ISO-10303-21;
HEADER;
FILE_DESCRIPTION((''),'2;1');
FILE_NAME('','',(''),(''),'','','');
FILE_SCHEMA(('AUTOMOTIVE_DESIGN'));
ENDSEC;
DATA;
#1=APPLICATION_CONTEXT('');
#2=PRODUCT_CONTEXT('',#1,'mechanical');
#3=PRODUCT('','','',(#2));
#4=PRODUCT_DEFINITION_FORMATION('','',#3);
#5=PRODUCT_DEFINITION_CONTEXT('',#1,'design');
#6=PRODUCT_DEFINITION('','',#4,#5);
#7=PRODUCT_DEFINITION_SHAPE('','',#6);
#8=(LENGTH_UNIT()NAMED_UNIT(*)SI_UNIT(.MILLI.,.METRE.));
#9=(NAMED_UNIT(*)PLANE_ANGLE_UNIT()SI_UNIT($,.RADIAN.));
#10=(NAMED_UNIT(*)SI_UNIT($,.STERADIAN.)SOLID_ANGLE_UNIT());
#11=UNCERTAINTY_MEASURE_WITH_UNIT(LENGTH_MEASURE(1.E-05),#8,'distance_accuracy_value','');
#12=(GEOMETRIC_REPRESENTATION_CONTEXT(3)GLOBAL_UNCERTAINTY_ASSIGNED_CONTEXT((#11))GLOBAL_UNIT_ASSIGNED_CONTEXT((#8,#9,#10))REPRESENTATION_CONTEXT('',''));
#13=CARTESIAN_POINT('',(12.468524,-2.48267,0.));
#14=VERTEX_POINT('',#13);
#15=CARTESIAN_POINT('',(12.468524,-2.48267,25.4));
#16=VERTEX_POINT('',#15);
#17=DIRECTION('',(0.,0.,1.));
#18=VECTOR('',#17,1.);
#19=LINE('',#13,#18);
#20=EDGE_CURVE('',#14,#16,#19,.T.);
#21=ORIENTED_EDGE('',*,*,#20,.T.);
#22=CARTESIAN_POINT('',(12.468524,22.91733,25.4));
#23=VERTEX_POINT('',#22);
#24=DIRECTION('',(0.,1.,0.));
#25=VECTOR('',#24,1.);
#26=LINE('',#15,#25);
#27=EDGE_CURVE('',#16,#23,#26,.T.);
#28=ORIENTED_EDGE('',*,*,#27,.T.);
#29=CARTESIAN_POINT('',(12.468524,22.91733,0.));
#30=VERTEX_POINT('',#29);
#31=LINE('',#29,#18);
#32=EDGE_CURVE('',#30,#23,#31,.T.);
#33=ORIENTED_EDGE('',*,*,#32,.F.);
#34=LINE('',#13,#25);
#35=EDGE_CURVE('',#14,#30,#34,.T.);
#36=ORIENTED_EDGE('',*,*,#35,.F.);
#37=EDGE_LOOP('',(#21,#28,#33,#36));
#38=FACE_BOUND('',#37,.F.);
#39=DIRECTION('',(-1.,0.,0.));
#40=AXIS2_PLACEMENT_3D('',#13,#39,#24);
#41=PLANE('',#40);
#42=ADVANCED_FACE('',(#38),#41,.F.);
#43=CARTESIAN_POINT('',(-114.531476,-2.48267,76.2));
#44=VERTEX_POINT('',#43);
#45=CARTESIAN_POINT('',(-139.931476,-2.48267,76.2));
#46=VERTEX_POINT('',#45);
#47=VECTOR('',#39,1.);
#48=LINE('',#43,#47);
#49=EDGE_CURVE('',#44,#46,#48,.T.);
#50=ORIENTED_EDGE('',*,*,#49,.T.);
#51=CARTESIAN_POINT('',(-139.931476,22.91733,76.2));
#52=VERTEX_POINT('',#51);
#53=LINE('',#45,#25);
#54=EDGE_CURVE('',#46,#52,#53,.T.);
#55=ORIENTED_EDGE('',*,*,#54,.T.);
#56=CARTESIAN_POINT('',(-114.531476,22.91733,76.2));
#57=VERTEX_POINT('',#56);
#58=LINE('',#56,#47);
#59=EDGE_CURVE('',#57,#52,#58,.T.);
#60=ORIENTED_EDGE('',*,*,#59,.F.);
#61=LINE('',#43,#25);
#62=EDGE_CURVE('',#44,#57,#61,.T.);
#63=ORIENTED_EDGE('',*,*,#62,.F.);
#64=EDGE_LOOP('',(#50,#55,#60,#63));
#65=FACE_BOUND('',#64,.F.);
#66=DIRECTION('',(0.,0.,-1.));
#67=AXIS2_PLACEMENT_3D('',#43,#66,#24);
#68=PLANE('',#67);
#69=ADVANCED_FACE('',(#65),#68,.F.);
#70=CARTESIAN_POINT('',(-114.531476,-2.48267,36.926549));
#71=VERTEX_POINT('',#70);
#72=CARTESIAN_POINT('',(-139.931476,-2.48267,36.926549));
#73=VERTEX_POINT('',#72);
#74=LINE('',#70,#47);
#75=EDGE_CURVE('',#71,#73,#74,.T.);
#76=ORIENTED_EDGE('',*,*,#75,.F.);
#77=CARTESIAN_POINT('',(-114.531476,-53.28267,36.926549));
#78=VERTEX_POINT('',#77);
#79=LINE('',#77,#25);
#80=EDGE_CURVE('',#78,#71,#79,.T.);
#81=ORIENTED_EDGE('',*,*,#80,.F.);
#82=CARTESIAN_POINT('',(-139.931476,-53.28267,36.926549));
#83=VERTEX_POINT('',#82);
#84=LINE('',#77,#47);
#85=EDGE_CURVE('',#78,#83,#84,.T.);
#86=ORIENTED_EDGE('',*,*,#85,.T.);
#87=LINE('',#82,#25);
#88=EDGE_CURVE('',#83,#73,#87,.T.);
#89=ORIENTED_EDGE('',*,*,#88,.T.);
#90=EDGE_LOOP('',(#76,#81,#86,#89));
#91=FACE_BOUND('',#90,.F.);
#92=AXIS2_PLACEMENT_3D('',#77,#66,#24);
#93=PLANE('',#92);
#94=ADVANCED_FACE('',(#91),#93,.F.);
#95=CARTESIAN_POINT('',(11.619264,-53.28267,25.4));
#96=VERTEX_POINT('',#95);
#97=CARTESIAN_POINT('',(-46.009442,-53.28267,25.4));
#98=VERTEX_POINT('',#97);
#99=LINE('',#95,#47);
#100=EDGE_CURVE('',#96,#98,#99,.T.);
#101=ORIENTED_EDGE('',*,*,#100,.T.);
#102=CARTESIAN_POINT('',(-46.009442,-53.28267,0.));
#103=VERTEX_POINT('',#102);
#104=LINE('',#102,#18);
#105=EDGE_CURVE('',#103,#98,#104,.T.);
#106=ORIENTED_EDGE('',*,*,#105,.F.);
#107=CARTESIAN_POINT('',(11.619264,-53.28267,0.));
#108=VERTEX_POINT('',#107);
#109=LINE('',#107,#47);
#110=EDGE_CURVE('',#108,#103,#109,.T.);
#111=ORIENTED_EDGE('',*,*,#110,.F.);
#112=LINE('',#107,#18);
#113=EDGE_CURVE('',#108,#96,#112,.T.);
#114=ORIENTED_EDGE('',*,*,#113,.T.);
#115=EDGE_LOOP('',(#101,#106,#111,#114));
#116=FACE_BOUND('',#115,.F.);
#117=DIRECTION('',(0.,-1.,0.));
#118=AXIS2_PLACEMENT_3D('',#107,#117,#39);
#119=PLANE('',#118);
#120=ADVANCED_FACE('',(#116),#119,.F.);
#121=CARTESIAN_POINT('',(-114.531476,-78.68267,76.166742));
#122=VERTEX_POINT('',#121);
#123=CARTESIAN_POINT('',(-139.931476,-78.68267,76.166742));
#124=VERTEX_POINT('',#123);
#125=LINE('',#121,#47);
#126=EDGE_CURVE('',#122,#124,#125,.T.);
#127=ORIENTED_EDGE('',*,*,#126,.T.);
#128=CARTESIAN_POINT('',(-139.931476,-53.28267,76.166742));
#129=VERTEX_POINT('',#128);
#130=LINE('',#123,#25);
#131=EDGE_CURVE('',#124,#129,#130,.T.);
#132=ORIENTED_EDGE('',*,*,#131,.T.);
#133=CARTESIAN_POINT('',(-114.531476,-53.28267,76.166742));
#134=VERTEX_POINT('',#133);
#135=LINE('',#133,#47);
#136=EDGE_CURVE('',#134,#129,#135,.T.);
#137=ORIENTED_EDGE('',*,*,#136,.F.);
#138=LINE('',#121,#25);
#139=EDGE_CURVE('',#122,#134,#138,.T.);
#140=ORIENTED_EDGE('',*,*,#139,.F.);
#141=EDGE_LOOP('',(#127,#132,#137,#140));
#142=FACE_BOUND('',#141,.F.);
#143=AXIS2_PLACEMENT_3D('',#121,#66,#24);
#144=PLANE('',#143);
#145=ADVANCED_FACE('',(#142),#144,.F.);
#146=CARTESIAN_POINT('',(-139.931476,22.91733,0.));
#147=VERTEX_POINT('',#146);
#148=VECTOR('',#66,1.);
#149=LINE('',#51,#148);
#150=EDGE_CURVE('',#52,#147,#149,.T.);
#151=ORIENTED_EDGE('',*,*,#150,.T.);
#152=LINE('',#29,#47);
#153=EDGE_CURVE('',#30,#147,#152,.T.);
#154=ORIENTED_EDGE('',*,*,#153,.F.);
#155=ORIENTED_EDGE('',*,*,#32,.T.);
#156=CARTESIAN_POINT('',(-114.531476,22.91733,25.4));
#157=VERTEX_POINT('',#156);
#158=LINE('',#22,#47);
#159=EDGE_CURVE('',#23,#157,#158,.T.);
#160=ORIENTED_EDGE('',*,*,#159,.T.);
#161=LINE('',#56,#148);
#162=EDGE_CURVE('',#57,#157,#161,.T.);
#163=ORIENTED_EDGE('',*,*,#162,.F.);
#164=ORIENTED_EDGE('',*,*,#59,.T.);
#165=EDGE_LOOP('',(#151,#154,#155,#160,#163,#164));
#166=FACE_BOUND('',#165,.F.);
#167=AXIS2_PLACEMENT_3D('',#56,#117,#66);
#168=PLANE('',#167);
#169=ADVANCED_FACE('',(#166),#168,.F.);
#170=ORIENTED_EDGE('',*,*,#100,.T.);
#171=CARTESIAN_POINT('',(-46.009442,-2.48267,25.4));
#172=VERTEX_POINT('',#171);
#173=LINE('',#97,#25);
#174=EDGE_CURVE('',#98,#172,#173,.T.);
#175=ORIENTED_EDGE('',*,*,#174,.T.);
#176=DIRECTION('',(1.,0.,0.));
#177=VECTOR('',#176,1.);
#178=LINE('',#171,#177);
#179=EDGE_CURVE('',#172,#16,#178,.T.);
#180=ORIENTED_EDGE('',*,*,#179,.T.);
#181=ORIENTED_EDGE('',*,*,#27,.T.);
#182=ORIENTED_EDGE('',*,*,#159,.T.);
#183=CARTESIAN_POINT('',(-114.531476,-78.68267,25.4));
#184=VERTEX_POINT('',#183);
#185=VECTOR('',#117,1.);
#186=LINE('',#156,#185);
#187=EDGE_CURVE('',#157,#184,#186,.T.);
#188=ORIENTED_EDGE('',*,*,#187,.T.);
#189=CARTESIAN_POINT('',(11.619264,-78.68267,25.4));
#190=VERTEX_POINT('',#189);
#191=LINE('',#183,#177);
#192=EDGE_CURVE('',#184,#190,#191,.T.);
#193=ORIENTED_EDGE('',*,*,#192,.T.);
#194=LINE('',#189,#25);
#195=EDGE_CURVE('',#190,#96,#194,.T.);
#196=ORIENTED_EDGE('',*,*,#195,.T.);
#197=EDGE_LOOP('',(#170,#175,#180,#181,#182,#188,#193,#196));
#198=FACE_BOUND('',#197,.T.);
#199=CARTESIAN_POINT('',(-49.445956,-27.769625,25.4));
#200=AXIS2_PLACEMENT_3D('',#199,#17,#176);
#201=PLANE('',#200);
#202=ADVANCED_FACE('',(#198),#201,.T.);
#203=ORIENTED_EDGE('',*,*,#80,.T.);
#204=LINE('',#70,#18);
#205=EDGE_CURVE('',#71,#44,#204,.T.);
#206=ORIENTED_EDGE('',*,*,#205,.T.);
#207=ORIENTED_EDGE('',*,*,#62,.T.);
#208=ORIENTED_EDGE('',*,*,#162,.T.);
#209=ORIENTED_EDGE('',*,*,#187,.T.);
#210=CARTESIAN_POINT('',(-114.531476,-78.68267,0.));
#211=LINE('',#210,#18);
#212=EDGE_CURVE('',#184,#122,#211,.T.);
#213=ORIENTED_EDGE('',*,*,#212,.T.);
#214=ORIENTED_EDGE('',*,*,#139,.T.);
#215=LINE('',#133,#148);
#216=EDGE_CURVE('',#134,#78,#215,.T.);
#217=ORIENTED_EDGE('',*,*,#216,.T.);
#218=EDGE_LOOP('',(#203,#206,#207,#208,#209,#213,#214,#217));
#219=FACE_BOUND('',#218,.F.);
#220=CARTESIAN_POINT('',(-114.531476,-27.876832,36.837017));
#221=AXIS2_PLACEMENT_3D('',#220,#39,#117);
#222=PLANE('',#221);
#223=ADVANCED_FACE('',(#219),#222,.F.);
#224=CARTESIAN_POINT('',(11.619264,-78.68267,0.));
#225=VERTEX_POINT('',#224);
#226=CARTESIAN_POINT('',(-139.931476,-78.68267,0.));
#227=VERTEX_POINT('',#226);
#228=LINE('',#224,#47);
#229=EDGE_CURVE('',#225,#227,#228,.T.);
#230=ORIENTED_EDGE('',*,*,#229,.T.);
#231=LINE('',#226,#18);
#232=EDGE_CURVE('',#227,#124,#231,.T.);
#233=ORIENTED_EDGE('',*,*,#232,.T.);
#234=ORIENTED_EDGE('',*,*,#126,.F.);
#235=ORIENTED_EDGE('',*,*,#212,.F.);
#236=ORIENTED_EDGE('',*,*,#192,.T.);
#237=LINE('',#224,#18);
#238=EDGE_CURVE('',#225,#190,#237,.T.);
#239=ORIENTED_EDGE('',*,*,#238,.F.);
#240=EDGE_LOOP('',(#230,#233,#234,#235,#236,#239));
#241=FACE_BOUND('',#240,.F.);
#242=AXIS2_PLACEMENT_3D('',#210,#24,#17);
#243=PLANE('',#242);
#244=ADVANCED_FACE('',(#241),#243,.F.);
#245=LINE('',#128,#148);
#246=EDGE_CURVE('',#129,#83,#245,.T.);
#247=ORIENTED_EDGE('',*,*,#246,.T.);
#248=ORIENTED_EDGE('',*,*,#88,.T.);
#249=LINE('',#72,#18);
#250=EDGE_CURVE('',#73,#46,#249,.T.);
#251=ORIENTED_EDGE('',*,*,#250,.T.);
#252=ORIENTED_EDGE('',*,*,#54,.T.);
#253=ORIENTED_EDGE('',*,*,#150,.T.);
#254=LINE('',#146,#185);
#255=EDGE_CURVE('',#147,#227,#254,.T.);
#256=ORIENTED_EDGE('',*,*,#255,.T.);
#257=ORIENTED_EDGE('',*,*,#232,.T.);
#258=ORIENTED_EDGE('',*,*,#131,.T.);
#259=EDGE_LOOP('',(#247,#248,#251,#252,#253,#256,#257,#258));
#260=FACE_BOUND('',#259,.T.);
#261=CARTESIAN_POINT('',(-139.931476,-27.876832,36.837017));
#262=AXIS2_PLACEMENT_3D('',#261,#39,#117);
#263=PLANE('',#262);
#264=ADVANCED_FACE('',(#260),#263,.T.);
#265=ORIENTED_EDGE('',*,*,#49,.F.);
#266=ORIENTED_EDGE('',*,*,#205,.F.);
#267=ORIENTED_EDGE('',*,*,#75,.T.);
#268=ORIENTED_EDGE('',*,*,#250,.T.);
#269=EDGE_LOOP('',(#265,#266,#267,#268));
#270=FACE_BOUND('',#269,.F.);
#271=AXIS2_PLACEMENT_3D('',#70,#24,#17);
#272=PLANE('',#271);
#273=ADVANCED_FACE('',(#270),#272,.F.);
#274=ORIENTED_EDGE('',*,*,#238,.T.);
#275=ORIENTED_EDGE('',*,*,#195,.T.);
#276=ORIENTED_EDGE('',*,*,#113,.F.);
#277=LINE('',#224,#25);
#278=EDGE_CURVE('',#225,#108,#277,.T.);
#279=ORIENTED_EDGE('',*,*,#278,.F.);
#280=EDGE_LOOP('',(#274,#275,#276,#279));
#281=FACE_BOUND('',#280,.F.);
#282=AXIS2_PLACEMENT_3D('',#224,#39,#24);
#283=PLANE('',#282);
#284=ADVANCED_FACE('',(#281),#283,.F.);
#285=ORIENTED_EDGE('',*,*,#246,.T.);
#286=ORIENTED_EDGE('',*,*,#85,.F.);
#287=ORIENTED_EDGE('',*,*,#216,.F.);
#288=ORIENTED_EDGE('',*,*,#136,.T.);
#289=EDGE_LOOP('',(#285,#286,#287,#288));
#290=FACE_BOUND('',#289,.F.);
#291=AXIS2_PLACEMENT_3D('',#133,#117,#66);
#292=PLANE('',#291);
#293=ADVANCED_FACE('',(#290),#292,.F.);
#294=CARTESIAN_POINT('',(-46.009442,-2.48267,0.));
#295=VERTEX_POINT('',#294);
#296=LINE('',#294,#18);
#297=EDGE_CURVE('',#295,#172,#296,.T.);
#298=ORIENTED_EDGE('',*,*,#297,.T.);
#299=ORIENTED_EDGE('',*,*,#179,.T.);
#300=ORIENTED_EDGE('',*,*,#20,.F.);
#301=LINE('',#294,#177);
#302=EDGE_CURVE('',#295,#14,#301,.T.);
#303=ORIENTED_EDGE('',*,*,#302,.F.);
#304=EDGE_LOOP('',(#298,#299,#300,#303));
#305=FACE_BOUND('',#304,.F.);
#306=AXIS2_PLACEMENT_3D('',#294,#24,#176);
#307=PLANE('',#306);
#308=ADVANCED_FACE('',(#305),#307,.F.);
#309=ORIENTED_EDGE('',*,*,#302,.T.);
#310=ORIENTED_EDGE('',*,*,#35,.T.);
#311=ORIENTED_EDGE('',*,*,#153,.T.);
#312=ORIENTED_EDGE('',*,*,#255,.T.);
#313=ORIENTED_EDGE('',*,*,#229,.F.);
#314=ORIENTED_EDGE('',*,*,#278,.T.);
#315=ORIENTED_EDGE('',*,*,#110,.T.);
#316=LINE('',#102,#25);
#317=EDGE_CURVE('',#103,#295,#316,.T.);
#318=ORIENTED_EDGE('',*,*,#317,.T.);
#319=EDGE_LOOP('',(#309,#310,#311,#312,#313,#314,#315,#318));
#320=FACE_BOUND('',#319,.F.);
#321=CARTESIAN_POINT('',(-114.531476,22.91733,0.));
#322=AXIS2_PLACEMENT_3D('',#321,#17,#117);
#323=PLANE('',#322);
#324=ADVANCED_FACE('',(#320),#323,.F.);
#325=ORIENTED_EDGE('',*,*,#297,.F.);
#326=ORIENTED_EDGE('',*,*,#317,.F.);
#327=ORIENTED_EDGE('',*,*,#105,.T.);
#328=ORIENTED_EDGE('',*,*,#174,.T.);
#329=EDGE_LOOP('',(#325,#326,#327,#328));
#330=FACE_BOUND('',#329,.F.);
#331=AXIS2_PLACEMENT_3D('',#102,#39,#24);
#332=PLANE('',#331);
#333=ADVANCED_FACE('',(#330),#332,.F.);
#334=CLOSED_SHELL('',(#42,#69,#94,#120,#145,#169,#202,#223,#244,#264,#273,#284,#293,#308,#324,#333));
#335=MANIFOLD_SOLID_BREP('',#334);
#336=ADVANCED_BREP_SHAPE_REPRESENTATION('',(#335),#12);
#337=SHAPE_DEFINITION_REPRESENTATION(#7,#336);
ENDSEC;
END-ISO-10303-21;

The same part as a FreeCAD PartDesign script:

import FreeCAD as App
import Part
import Sketcher
Q = App.Units.Quantity

doc = App.newDocument("Part")
body = doc.addObject("PartDesign::Body", "Body")

sketch1 = body.newObject("Sketcher::SketchObject", "Sketch")
sketch1.AttachmentSupport = (doc.getObject("XY_Plane"), [""])
sketch1.MapMode = "FlatFace"
sketch1.addGeometry(Part.LineSegment(App.Vector(12, 23, 0), App.Vector(-115, 23, 0)), False)
sketch1.addGeometry(Part.LineSegment(App.Vector(-115, 23, 0), App.Vector(-115, -79, 0)), False)
sketch1.addGeometry(Part.LineSegment(App.Vector(-115, -79, 0), App.Vector(12, -79, 0)), False)
sketch1.addGeometry(Part.LineSegment(App.Vector(12, -79, 0), App.Vector(12, -53, 0)), False)
sketch1.addGeometry(Part.LineSegment(App.Vector(12, -53, 0), App.Vector(-46, -53, 0)), False)
sketch1.addGeometry(Part.LineSegment(App.Vector(-46, -53, 0), App.Vector(-46, -2, 0)), False)
sketch1.addGeometry(Part.LineSegment(App.Vector(-46, -2, 0), App.Vector(12, -2, 0)), False)
sketch1.addGeometry(Part.LineSegment(App.Vector(12, -2, 0), App.Vector(12, 23, 0)), False)
sketch1.addConstraint(Sketcher.Constraint("Coincident", 0, 2, 1, 1))
sketch1.addConstraint(Sketcher.Constraint("Coincident", 1, 2, 2, 1))
sketch1.addConstraint(Sketcher.Constraint("Coincident", 2, 2, 3, 1))
sketch1.addConstraint(Sketcher.Constraint("Coincident", 3, 2, 4, 1))
sketch1.addConstraint(Sketcher.Constraint("Coincident", 4, 2, 5, 1))
sketch1.addConstraint(Sketcher.Constraint("Coincident", 5, 2, 6, 1))
sketch1.addConstraint(Sketcher.Constraint("Coincident", 6, 2, 7, 1))
sketch1.addConstraint(Sketcher.Constraint("Coincident", 7, 2, 0, 1))
sketch1.addConstraint(Sketcher.Constraint("Horizontal", 0))
sketch1.addConstraint(Sketcher.Constraint("Vertical", 1))
sketch1.addConstraint(Sketcher.Constraint("Horizontal", 2))
sketch1.addConstraint(Sketcher.Constraint("Vertical", 3))
sketch1.addConstraint(Sketcher.Constraint("Horizontal", 4))
sketch1.addConstraint(Sketcher.Constraint("Vertical", 5))
sketch1.addConstraint(Sketcher.Constraint("Horizontal", 6))
sketch1.addConstraint(Sketcher.Constraint("Vertical", 7))
sketch1.addConstraint(Sketcher.Constraint("Equal", 3, 7))
sketch1.addConstraint(Sketcher.Constraint("DistanceX", 0, 2, 0, 1, Q("5 in")))
sketch1.addConstraint(Sketcher.Constraint("DistanceY", 1, 2, 1, 1, Q("4 in")))
sketch1.addConstraint(Sketcher.Constraint("DistanceY", 3, 1, 3, 2, Q("1 in")))
sketch1.addConstraint(Sketcher.Constraint("DistanceX", 2, 1, 2, 2, Q("126.15074 mm")))
sketch1.addConstraint(Sketcher.Constraint("DistanceX", 4, 2, 4, 1, Q("57.628706 mm")))
sketch1.addConstraint(Sketcher.Constraint("DistanceY", -1, 1, 0, 2, Q("22.91733 mm")))
sketch1.addConstraint(Sketcher.Constraint("DistanceX", 0, 2, -1, 1, Q("114.531476 mm")))
pad1 = body.newObject("PartDesign::Pad", "Pad")
pad1.Profile = sketch1
pad1.Length = Q("1 in")

sketch2 = body.newObject("Sketcher::SketchObject", "Sketch001")
sketch2.AttachmentSupport = (doc.getObject("YZ_Plane"), [""])
sketch2.MapMode = "FlatFace"
sketch2.AttachmentOffset = App.Placement(App.Vector(0, 0, -114.531476), App.Rotation())
sketch2.addGeometry(Part.LineSegment(App.Vector(23, 76, 0), App.Vector(23, 0, 0)), False)
sketch2.addGeometry(Part.LineSegment(App.Vector(23, 0, 0), App.Vector(-79, 0, 0)), False)
sketch2.addGeometry(Part.LineSegment(App.Vector(-79, 0, 0), App.Vector(-79, 76, 0)), False)
sketch2.addGeometry(Part.LineSegment(App.Vector(-79, 76, 0), App.Vector(-53, 76, 0)), False)
sketch2.addGeometry(Part.LineSegment(App.Vector(-53, 76, 0), App.Vector(-53, 37, 0)), False)
sketch2.addGeometry(Part.LineSegment(App.Vector(-53, 37, 0), App.Vector(-2, 37, 0)), False)
sketch2.addGeometry(Part.LineSegment(App.Vector(-2, 37, 0), App.Vector(-2, 76, 0)), False)
sketch2.addGeometry(Part.LineSegment(App.Vector(-2, 76, 0), App.Vector(23, 76, 0)), False)
sketch2.addConstraint(Sketcher.Constraint("Coincident", 0, 2, 1, 1))
sketch2.addConstraint(Sketcher.Constraint("Coincident", 1, 2, 2, 1))
sketch2.addConstraint(Sketcher.Constraint("Coincident", 2, 2, 3, 1))
sketch2.addConstraint(Sketcher.Constraint("Coincident", 3, 2, 4, 1))
sketch2.addConstraint(Sketcher.Constraint("Coincident", 4, 2, 5, 1))
sketch2.addConstraint(Sketcher.Constraint("Coincident", 5, 2, 6, 1))
sketch2.addConstraint(Sketcher.Constraint("Coincident", 6, 2, 7, 1))
sketch2.addConstraint(Sketcher.Constraint("Coincident", 7, 2, 0, 1))
sketch2.addConstraint(Sketcher.Constraint("Vertical", 0))
sketch2.addConstraint(Sketcher.Constraint("Horizontal", 1))
sketch2.addConstraint(Sketcher.Constraint("Vertical", 2))
sketch2.addConstraint(Sketcher.Constraint("Horizontal", 3))
sketch2.addConstraint(Sketcher.Constraint("Vertical", 4))
sketch2.addConstraint(Sketcher.Constraint("Horizontal", 5))
sketch2.addConstraint(Sketcher.Constraint("Vertical", 6))
sketch2.addConstraint(Sketcher.Constraint("Horizontal", 7))
sketch2.addConstraint(Sketcher.Constraint("PointOnObject", 0, 2, -1))
sketch2.addConstraint(Sketcher.Constraint("Equal", 3, 7))
sketch2.addConstraint(Sketcher.Constraint("DistanceX", 1, 2, 1, 1, Q("4 in")))
sketch2.addConstraint(Sketcher.Constraint("DistanceX", 3, 1, 3, 2, Q("1 in")))
sketch2.addConstraint(Sketcher.Constraint("DistanceY", 0, 2, 0, 1, Q("3 in")))
sketch2.addConstraint(Sketcher.Constraint("DistanceY", 2, 1, 2, 2, Q("76.166742 mm")))
sketch2.addConstraint(Sketcher.Constraint("DistanceY", 6, 1, 6, 2, Q("39.273451 mm")))
sketch2.addConstraint(Sketcher.Constraint("DistanceX", -1, 1, 0, 2, Q("22.91733 mm")))
pad2 = body.newObject("PartDesign::Pad", "Pad001")
pad2.Profile = sketch2
pad2.Length = Q("1 in")
pad2.Reversed = True

doc.recompute()
